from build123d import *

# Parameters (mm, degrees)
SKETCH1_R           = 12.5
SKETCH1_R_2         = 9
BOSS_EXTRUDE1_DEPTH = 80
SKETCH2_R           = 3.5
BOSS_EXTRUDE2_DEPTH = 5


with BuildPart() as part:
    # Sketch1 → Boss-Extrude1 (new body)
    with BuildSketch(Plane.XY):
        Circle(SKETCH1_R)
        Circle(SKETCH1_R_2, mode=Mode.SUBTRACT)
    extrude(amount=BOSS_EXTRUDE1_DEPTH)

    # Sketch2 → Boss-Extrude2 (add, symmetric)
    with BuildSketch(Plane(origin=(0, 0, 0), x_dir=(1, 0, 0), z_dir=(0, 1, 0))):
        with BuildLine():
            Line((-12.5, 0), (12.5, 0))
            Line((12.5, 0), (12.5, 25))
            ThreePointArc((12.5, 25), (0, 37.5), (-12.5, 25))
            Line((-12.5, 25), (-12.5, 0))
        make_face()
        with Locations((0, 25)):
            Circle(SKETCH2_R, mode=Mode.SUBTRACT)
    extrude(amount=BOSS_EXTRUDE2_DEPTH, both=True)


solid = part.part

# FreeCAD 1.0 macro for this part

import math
import FreeCAD as App
import Part
import Sketcher
from FreeCAD import Vector
Q = App.Units.Quantity

doc = App.newDocument("Part")
body = doc.addObject("PartDesign::Body", "Body")

sketch1 = body.newObject("Sketcher::SketchObject", "Sketch")
sketch1.AttachmentSupport = (doc.getObject("XY_Plane"), [""])
sketch1.MapMode = "FlatFace"
sketch1.addGeometry([
    Part.Circle(Vector(0, 0, 0), Vector(0, 0, 1), 12.5),
    Part.Circle(Vector(0, 0, 0), Vector(0, 0, 1), 9),
], False)
sketch1.addConstraint([
    Sketcher.Constraint("Coincident", 0, 3, -1, 1),
    Sketcher.Constraint("Coincident", 1, 3, -1, 1),
    Sketcher.Constraint("Diameter", 0, Q("25 mm")),
    Sketcher.Constraint("Diameter", 1, Q("18 mm")),
])
pad1 = body.newObject("PartDesign::Pad", "Pad")
pad1.Profile = sketch1
pad1.Length = 80

sketch2 = body.newObject("Sketcher::SketchObject", "Sketch001")
sketch2.AttachmentSupport = (doc.getObject("XZ_Plane"), [""])
sketch2.MapMode = "FlatFace"
sketch2.addGeometry([
    Part.LineSegment(Vector(-12.5, 0, 0), Vector(12.5, 0, 0)),
    Part.LineSegment(Vector(12.5, 0, 0), Vector(12.5, -25, 0)),
    Part.ArcOfCircle(Part.Circle(Vector(0, -25, 0), Vector(0, 0, 1), 12.5), math.radians(180), math.radians(360)),
    Part.LineSegment(Vector(-12.5, -25, 0), Vector(-12.5, 0, 0)),
    Part.Circle(Vector(0, -25, 0), Vector(0, 0, 1), 3.5),
], False)
sketch2.addConstraint([
    Sketcher.Constraint("Coincident", 0, 2, 1, 1),
    Sketcher.Constraint("Tangent", 1, 2, 2, 2),
    Sketcher.Constraint("Tangent", 2, 1, 3, 1),
    Sketcher.Constraint("Coincident", 3, 2, 0, 1),
    Sketcher.Constraint("Horizontal", 0),
    Sketcher.Constraint("Vertical", 1),
    Sketcher.Constraint("Vertical", 3),
    Sketcher.Constraint("Coincident", 4, 3, 2, 3),
    Sketcher.Constraint("Symmetric", 0, 2, 3, 2, -1, 1),
    Sketcher.Constraint("Equal", 0, 1),
    Sketcher.Constraint("Diameter", 4, Q("7 mm")),
    Sketcher.Constraint("Radius", 2, Q("12.5 mm")),
])
pad2 = body.newObject("PartDesign::Pad", "Pad001")
pad2.Profile = sketch2
pad2.Length = 10
pad2.Midplane = True

doc.recompute()
